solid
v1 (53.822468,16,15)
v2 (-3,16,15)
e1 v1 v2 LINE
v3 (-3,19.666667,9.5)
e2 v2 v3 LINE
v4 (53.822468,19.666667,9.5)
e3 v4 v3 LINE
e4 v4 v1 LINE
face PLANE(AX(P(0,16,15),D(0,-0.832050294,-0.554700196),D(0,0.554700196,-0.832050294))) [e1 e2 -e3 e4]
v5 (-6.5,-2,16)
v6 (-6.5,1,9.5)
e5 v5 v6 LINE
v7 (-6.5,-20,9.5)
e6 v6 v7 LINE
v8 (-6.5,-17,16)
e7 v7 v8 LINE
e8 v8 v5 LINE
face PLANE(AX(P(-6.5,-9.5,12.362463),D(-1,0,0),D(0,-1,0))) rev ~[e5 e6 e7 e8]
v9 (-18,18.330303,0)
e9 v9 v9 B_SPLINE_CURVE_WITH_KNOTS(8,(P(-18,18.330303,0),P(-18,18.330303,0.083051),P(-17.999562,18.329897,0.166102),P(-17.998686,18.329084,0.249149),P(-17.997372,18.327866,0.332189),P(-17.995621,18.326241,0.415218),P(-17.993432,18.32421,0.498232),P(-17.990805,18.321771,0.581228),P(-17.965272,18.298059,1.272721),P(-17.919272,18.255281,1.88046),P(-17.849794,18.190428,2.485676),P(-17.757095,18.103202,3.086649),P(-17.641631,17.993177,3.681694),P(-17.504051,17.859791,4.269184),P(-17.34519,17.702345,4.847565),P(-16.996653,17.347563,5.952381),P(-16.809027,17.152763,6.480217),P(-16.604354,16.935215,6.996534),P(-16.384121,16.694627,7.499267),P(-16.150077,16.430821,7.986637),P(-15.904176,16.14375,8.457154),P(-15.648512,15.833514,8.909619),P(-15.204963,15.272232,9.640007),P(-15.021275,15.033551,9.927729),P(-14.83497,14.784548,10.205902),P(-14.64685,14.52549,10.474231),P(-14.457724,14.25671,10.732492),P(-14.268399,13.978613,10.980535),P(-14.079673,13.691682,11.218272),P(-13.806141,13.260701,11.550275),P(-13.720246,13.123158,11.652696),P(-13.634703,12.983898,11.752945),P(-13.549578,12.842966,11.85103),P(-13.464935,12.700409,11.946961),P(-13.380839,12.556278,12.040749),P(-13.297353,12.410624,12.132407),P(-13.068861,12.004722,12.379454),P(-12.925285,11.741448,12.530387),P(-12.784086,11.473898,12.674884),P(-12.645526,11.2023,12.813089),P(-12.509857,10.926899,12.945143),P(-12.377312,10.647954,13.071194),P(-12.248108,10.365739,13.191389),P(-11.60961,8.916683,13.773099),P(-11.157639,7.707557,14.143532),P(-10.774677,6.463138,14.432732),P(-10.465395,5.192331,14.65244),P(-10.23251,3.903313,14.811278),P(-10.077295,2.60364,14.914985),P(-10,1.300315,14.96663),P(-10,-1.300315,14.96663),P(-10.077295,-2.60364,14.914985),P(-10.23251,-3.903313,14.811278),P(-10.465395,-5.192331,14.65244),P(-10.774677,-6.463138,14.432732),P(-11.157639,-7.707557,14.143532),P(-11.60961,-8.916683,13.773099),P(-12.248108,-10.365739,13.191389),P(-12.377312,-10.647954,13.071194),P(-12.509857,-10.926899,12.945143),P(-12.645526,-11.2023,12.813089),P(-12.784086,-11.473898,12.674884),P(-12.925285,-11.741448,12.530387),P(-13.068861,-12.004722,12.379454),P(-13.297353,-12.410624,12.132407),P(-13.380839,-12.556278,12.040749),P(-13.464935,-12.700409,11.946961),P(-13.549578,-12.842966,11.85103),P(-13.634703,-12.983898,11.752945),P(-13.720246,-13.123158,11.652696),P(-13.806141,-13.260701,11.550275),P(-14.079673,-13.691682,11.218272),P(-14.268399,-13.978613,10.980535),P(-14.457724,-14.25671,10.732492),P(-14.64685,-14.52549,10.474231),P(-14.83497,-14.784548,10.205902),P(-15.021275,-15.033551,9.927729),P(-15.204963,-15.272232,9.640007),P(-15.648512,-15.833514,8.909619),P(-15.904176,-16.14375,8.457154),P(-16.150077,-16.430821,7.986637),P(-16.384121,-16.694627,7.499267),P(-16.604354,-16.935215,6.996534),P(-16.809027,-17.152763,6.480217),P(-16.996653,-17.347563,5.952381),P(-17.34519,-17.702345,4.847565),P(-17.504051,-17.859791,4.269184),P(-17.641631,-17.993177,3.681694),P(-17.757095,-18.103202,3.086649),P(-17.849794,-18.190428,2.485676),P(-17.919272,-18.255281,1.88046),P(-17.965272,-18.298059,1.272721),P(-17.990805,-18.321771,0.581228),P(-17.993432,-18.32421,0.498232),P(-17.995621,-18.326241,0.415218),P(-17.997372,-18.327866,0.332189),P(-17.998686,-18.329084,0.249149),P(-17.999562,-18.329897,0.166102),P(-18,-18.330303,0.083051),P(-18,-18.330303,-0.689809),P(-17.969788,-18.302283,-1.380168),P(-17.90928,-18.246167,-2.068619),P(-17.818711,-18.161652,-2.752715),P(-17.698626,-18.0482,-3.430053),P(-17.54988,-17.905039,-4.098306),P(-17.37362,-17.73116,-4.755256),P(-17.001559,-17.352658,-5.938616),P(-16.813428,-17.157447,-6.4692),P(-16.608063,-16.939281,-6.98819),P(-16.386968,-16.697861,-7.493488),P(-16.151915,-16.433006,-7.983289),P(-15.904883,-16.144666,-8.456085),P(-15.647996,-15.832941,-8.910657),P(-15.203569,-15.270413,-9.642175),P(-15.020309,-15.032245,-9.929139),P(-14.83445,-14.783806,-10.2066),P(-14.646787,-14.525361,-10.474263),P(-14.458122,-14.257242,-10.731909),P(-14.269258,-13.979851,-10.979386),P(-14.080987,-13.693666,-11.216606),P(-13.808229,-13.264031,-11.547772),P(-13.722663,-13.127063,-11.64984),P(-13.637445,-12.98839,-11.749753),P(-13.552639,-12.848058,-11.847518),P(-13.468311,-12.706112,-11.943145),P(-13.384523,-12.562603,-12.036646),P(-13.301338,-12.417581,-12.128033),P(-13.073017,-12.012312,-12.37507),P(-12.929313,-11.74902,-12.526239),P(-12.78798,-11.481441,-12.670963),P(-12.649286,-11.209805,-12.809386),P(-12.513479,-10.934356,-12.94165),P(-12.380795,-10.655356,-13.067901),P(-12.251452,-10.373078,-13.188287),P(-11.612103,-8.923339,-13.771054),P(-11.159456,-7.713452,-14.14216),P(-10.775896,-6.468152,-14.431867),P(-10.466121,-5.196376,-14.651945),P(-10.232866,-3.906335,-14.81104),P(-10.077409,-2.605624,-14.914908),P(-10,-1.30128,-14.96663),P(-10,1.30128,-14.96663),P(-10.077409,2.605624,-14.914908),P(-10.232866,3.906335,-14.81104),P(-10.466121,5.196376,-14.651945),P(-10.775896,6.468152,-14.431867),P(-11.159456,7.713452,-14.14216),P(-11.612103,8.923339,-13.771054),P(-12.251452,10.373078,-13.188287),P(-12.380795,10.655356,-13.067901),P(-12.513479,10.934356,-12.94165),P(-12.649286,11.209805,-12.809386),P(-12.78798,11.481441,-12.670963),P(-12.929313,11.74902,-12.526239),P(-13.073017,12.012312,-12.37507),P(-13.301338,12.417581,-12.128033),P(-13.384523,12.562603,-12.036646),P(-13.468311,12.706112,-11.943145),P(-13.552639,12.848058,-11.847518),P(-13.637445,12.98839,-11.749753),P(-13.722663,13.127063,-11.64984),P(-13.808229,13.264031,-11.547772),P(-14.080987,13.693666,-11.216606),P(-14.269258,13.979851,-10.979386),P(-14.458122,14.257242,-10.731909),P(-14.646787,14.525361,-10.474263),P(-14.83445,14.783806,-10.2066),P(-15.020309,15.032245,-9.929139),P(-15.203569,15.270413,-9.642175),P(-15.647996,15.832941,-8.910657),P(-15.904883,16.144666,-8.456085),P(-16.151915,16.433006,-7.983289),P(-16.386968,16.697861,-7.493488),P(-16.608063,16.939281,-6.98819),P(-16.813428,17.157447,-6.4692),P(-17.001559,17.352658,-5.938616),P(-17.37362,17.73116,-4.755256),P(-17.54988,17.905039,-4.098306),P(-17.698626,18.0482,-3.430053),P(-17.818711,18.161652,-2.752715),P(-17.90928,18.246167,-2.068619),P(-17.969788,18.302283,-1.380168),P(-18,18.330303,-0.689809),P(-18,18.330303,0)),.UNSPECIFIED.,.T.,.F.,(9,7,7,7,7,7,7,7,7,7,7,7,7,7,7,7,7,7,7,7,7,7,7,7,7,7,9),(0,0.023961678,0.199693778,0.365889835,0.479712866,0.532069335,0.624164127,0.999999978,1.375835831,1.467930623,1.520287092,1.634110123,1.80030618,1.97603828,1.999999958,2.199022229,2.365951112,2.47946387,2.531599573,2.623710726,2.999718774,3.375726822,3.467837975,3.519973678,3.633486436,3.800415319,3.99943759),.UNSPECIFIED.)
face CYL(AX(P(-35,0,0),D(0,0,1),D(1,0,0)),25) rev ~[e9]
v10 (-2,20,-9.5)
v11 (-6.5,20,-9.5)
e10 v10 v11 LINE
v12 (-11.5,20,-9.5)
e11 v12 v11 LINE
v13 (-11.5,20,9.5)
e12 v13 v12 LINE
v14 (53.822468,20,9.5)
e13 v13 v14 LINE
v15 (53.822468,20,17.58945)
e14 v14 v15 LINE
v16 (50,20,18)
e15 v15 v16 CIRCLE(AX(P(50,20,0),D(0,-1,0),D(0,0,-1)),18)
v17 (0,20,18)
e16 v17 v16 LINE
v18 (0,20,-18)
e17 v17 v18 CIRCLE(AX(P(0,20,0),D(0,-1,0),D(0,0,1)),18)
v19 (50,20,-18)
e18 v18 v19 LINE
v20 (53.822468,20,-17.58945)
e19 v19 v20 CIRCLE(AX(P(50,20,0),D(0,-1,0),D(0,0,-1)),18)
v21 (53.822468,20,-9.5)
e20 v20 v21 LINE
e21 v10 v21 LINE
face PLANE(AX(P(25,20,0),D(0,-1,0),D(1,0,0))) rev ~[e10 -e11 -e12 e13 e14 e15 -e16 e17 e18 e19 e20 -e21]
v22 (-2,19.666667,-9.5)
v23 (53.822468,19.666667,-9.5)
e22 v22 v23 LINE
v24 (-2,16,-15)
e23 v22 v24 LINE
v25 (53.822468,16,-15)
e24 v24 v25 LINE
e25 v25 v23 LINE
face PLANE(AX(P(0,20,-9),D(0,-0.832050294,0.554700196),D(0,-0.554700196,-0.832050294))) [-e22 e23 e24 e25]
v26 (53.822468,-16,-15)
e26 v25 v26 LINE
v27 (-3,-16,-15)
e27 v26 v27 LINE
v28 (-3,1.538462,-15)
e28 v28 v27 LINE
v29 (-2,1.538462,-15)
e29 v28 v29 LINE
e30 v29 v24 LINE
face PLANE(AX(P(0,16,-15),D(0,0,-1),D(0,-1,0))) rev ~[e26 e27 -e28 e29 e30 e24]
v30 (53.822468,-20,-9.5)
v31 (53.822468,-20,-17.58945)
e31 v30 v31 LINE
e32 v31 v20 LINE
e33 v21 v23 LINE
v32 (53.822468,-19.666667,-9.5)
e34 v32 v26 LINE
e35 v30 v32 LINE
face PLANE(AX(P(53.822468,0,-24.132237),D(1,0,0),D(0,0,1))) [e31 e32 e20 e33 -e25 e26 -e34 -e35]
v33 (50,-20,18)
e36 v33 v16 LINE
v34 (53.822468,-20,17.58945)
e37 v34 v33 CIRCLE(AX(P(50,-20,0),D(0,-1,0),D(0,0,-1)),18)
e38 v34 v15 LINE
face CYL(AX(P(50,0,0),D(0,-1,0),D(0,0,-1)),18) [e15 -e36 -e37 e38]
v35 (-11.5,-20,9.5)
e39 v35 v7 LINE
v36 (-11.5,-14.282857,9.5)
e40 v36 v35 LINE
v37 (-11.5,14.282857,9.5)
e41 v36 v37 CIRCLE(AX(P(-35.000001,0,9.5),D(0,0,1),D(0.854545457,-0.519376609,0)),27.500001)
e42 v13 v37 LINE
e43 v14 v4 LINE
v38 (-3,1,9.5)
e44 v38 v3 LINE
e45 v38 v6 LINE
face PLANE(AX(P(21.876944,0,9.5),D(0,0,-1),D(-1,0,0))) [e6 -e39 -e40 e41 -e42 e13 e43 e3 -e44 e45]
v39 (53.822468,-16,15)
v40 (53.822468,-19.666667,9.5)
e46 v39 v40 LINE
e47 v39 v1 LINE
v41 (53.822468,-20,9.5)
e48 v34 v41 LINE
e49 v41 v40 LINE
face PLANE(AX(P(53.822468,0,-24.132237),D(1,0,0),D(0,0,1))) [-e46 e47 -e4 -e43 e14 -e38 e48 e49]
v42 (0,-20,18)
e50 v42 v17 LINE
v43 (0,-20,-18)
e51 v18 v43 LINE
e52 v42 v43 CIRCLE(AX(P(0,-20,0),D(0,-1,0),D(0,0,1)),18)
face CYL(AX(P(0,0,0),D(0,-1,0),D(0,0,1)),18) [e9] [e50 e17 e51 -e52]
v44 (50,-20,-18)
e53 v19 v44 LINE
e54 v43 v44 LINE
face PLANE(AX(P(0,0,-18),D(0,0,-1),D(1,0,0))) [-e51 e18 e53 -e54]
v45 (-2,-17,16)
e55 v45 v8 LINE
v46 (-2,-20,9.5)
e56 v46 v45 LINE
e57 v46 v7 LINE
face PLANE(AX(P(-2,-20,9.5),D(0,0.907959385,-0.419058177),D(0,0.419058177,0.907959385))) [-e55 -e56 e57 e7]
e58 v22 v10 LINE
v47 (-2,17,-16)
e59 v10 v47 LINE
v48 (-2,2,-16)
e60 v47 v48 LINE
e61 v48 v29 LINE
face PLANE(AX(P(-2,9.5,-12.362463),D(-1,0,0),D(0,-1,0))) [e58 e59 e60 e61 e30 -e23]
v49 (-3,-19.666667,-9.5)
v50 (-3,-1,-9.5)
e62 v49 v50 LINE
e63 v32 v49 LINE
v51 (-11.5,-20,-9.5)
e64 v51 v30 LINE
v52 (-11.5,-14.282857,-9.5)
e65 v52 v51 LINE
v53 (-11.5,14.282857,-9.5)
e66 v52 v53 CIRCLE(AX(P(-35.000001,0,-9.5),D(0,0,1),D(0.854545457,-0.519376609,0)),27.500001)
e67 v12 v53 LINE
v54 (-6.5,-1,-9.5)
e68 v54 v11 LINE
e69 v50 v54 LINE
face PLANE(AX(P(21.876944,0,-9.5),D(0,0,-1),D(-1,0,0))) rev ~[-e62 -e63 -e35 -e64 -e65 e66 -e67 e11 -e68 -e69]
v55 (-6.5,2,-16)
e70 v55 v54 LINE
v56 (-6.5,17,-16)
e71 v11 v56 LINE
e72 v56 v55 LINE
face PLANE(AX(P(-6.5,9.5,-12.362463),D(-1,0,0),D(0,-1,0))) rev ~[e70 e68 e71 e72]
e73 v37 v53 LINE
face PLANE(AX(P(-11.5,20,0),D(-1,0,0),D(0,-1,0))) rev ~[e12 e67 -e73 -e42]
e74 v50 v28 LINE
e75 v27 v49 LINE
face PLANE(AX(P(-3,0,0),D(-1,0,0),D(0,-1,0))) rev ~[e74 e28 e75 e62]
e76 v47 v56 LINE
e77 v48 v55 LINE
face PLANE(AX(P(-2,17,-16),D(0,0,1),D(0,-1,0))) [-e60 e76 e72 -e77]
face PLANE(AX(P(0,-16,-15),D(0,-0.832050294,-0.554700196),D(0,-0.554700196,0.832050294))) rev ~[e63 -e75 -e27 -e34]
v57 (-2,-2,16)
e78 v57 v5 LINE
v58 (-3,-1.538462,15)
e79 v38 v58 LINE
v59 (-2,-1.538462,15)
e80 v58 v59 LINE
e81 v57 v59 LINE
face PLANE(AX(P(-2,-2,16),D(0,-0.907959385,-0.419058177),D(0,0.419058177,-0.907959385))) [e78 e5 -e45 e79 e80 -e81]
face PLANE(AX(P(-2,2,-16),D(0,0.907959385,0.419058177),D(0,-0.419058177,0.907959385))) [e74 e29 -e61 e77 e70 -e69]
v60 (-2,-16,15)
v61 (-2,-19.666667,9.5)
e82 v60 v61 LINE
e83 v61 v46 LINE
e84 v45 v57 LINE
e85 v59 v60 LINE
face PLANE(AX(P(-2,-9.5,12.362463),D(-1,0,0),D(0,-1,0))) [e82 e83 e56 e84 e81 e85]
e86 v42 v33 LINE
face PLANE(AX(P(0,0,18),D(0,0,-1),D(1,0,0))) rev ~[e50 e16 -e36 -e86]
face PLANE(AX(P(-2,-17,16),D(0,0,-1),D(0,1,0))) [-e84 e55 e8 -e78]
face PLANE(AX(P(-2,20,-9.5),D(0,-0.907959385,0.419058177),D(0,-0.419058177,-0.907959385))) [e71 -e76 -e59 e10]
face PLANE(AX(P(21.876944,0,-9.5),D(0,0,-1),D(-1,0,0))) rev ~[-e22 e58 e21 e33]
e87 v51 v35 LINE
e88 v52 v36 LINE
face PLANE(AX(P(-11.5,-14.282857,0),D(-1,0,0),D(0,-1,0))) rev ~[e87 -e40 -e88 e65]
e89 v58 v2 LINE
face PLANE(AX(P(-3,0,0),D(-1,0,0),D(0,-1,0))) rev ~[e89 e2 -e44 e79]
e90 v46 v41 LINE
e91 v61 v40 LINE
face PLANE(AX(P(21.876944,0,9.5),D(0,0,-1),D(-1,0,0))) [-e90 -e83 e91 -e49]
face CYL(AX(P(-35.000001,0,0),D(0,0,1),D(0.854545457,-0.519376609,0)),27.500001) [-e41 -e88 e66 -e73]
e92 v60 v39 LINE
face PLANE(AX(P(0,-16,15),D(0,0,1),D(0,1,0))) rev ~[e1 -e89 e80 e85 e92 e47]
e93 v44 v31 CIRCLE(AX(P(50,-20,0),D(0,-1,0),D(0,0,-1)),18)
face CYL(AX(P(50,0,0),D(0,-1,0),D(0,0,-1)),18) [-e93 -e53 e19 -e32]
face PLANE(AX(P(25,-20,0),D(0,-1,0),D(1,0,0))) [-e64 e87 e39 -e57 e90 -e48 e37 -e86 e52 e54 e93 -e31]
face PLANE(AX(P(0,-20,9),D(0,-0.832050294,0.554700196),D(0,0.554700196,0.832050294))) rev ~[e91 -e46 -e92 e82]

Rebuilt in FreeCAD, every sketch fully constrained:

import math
import FreeCAD as App
import Part
import Sketcher
from FreeCAD import Vector


def add_polygon(sketch, points):
    """Adds a closed chain of lines whose ends are joined by coincident constraints."""
    first, n = sketch.GeometryCount, len(points)
    for a, b in zip(points, points[1:] + points[:1]):
        sketch.addGeometry(Part.LineSegment(App.Vector(*a, 0), App.Vector(*b, 0)), False)
    for i in range(n):
        sketch.addConstraint(Sketcher.Constraint("Coincident", first + i, 2, first + (i + 1) % n, 1))

doc = App.newDocument("Part")
body = doc.addObject("PartDesign::Body", "Body")

# Sketch on XZ plane
sketch1 = body.newObject("Sketcher::SketchObject", "Sketch")
sketch1.AttachmentSupport = (doc.getObject("XZ_Plane"), [""])
sketch1.MapMode = "FlatFace"
sketch1.addGeometry(Part.ArcOfCircle(Part.Circle(Vector(0, 0, 0), Vector(0, 0, 1), 18), math.radians(90), math.radians(270)), False)
sketch1.addGeometry(Part.LineSegment(Vector(0, -18, 0), Vector(50, -18, 0)), False)
sketch1.addGeometry(Part.ArcOfCircle(Part.Circle(Vector(50, 0, 0), Vector(0, 0, 1), 18), math.radians(-90), math.radians(90)), False)
sketch1.addGeometry(Part.LineSegment(Vector(50, 18, 0), Vector(0, 18, 0)), False)
sketch1.addConstraint(Sketcher.Constraint("Tangent", 0, 2, 1, 1))
sketch1.addConstraint(Sketcher.Constraint("Tangent", 1, 2, 2, 1))
sketch1.addConstraint(Sketcher.Constraint("Tangent", 2, 2, 3, 1))
sketch1.addConstraint(Sketcher.Constraint("Tangent", 3, 2, 0, 1))
sketch1.addConstraint(Sketcher.Constraint("Horizontal", 1))
sketch1.addConstraint(Sketcher.Constraint("Horizontal", 3))
sketch1.addConstraint(Sketcher.Constraint("Coincident", 0, 3, -1, 1))
sketch1.addConstraint(Sketcher.Constraint("Radius", 0, 18.0))
sketch1.addConstraint(Sketcher.Constraint("DistanceX", 1, 1, 1, 2, 50.0))
pad1 = body.newObject("PartDesign::Pad", "Pad")
pad1.Profile = sketch1
pad1.Length = 40
pad1.Midplane = True

# Sketch on XY plane
sketch2 = body.newObject("Sketcher::SketchObject", "Sketch001")
sketch2.AttachmentSupport = (doc.getObject("XY_Plane"), [""])
sketch2.MapMode = "FlatFace"
sketch2.addGeometry(Part.Circle(Vector(-35, 0, 0), Vector(0, 0, 1), 25), False)
sketch2.addGeometry(Part.Circle(Vector(85, 0, 0), Vector(0, 0, 1), 25), False)
sketch2.addConstraint(Sketcher.Constraint("Equal", 0, 1))
sketch2.addConstraint(Sketcher.Constraint("PointOnObject", 0, 3, -1))
sketch2.addConstraint(Sketcher.Constraint("PointOnObject", 1, 3, -1))
sketch2.addConstraint(Sketcher.Constraint("Diameter", 0, 50.0))
sketch2.addConstraint(Sketcher.Constraint("DistanceX", 0, 3, -1, 1, 35.0))
sketch2.addConstraint(Sketcher.Constraint("DistanceX", -1, 1, 1, 3, 85.0))
pocket1 = body.newObject("PartDesign::Pocket", "Pocket")
pocket1.Profile = sketch2
pocket1.Type = "ThroughAll"
pocket1.Midplane = True

# Sketch on XY plane
sketch3 = body.newObject("Sketcher::SketchObject", "Sketch002")
sketch3.AttachmentSupport = (doc.getObject("XY_Plane"), [""])
sketch3.MapMode = "FlatFace"
sketch3.addGeometry(Part.ArcOfCircle(Part.Circle(Vector(-35, 0, 0), Vector(0, 0, 1), 28), math.radians(-31), math.radians(31)), False)
sketch3.addGeometry(Part.LineSegment(Vector(-12, -14, 0), Vector(-12, -20, 0)), False)
sketch3.addGeometry(Part.LineSegment(Vector(-12, -20, 0), Vector(55, -20, 0)), False)
sketch3.addGeometry(Part.LineSegment(Vector(55, -20, 0), Vector(55, 20, 0)), False)
sketch3.addGeometry(Part.LineSegment(Vector(55, 20, 0), Vector(-12, 20, 0)), False)
sketch3.addGeometry(Part.LineSegment(Vector(-12, 20, 0), Vector(-12, 14, 0)), False)
sketch3.addConstraint(Sketcher.Constraint("Coincident", 0, 1, 1, 1))
sketch3.addConstraint(Sketcher.Constraint("Coincident", 1, 2, 2, 1))
sketch3.addConstraint(Sketcher.Constraint("Coincident", 2, 2, 3, 1))
sketch3.addConstraint(Sketcher.Constraint("Coincident", 3, 2, 4, 1))
sketch3.addConstraint(Sketcher.Constraint("Coincident", 4, 2, 5, 1))
sketch3.addConstraint(Sketcher.Constraint("Coincident", 5, 2, 0, 2))
sketch3.addConstraint(Sketcher.Constraint("Vertical", 1))
sketch3.addConstraint(Sketcher.Constraint("Horizontal", 2))
sketch3.addConstraint(Sketcher.Constraint("Vertical", 3))
sketch3.addConstraint(Sketcher.Constraint("Horizontal", 4))
sketch3.addConstraint(Sketcher.Constraint("Vertical", 5))
sketch3.addConstraint(Sketcher.Constraint("Symmetric", 1, 2, 4, 2, -1))
sketch3.addConstraint(Sketcher.Constraint("PointOnObject", 0, 3, -1))
sketch3.addConstraint(Sketcher.Constraint("Radius", 0, 27.500001))
sketch3.addConstraint(Sketcher.Constraint("DistanceY", 3, 1, 3, 2, 40.0))
sketch3.addConstraint(Sketcher.Constraint("DistanceX", 2, 1, 2, 2, 66.5))
sketch3.addConstraint(Sketcher.Constraint("DistanceX", 0, 3, -1, 1, 35.000001))
sketch3.addConstraint(Sketcher.Constraint("DistanceX", -1, 1, 2, 2, 55.0))
pocket2 = body.newObject("PartDesign::Pocket", "Pocket001")
pocket2.Profile = sketch3
pocket2.Length = 19
pocket2.Midplane = True

# Sketch on YZ plane
sketch4 = body.newObject("Sketcher::SketchObject", "Sketch003")
sketch4.AttachmentSupport = (doc.getObject("YZ_Plane"), [""])
sketch4.MapMode = "FlatFace"
add_polygon(sketch4, [(-16, 15), (-20, 9), (-20, -9), (-16, -15), (16, -15), (20, -9), (20, 9), (16, 15)])  # lines 0-7
sketch4.addConstraint(Sketcher.Constraint("Vertical", 1))
sketch4.addConstraint(Sketcher.Constraint("Horizontal", 3))
sketch4.addConstraint(Sketcher.Constraint("Vertical", 5))
sketch4.addConstraint(Sketcher.Constraint("Horizontal", 7))
sketch4.addConstraint(Sketcher.Constraint("Symmetric", 0, 2, 4, 2, -1, 1))
sketch4.addConstraint(Sketcher.Constraint("Symmetric", 2, 2, 6, 2, -1, 1))
sketch4.addConstraint(Sketcher.Constraint("Parallel", 0, 4))
sketch4.addConstraint(Sketcher.Constraint("Parallel", 2, 6))
sketch4.addConstraint(Sketcher.Constraint("Horizontal", 1, 2, 4, 2))
sketch4.addConstraint(Sketcher.Constraint("Vertical", 3, 2, 6, 2))
sketch4.addConstraint(Sketcher.Constraint("DistanceX", 3, 1, 3, 2, 32.0))
sketch4.addConstraint(Sketcher.Constraint("DistanceY", 1, 2, 1, 1, 18.0))
sketch4.addConstraint(Sketcher.Constraint("DistanceX", 0, 2, -1, 1, 20.0))
sketch4.addConstraint(Sketcher.Constraint("DistanceY", 2, 2, -1, 1, 15.0))
pocket3 = body.newObject("PartDesign::Pocket", "Pocket002")
pocket3.Profile = sketch4
pocket3.Type = "TwoLengths"
pocket3.Length = 3
pocket3.Length2 = 55

# Sketch on YZ plane
sketch5 = body.newObject("Sketcher::SketchObject", "Sketch004")
sketch5.AttachmentSupport = (doc.getObject("YZ_Plane"), [""])
sketch5.MapMode = "FlatFace"
sketch5.AttachmentOffset = App.Placement(Vector(0, 0, -2), App.Rotation())
add_polygon(sketch5, [(-2, 16), (-17, 16), (-20, 10), (1, 10)])  # lines 0-3
add_polygon(sketch5, [(20, -10), (-1, -10), (2, -16), (17, -16)])  # lines 4-7
sketch5.addConstraint(Sketcher.Constraint("Horizontal", 0))
sketch5.addConstraint(Sketcher.Constraint("Horizontal", 2))
sketch5.addConstraint(Sketcher.Constraint("Horizontal", 4))
sketch5.addConstraint(Sketcher.Constraint("Horizontal", 6))
sketch5.addConstraint(Sketcher.Constraint("Symmetric", 2, 2, 4, 2, -1, 1))
sketch5.addConstraint(Sketcher.Constraint("Symmetric", 3, 2, 5, 2, -1, 1))
sketch5.addConstraint(Sketcher.Constraint("Parallel", 1, 7))
sketch5.addConstraint(Sketcher.Constraint("Equal", 2, 4))
sketch5.addConstraint(Sketcher.Constraint("Equal", 1, 3))
sketch5.addConstraint(Sketcher.Constraint("DistanceX", 0, 2, 0, 1, 15.0))
sketch5.addConstraint(Sketcher.Constraint("DistanceX", 2, 1, 2, 2, 21.0))
sketch5.addConstraint(Sketcher.Constraint("DistanceX", 0, 2, -1, 1, 17.0))
sketch5.addConstraint(Sketcher.Constraint("DistanceY", -1, 1, 0, 2, 16.0))
sketch5.addConstraint(Sketcher.Constraint("DistanceY", 4, 2, 2, 2, 19.0))
pocket4 = body.newObject("PartDesign::Pocket", "Pocket003")
pocket4.Profile = sketch5
pocket4.Length = 4.5

# Sketch on XZ plane
sketch6 = body.newObject("Sketcher::SketchObject", "Sketch005")
sketch6.AttachmentSupport = (doc.getObject("XZ_Plane"), [""])
sketch6.MapMode = "FlatFace"
add_polygon(sketch6, [(54, 26), (54, -24), (84, -24), (84, 26)])  # lines 0-3
sketch6.addConstraint(Sketcher.Constraint("Vertical", 0))
sketch6.addConstraint(Sketcher.Constraint("Horizontal", 1))
sketch6.addConstraint(Sketcher.Constraint("Vertical", 2))
sketch6.addConstraint(Sketcher.Constraint("Horizontal", 3))
sketch6.addConstraint(Sketcher.Constraint("DistanceX", 1, 1, 1, 2, 30.00024))
sketch6.addConstraint(Sketcher.Constraint("DistanceY", 0, 2, 0, 1, 49.987866))
sketch6.addConstraint(Sketcher.Constraint("DistanceX", -1, 1, 1, 2, 83.822708))
sketch6.addConstraint(Sketcher.Constraint("DistanceY", -1, 1, 2, 2, 25.855629))
pocket5 = body.newObject("PartDesign::Pocket", "Pocket004")
pocket5.Profile = sketch6
pocket5.Type = "ThroughAll"
pocket5.Midplane = True

doc.recompute()
